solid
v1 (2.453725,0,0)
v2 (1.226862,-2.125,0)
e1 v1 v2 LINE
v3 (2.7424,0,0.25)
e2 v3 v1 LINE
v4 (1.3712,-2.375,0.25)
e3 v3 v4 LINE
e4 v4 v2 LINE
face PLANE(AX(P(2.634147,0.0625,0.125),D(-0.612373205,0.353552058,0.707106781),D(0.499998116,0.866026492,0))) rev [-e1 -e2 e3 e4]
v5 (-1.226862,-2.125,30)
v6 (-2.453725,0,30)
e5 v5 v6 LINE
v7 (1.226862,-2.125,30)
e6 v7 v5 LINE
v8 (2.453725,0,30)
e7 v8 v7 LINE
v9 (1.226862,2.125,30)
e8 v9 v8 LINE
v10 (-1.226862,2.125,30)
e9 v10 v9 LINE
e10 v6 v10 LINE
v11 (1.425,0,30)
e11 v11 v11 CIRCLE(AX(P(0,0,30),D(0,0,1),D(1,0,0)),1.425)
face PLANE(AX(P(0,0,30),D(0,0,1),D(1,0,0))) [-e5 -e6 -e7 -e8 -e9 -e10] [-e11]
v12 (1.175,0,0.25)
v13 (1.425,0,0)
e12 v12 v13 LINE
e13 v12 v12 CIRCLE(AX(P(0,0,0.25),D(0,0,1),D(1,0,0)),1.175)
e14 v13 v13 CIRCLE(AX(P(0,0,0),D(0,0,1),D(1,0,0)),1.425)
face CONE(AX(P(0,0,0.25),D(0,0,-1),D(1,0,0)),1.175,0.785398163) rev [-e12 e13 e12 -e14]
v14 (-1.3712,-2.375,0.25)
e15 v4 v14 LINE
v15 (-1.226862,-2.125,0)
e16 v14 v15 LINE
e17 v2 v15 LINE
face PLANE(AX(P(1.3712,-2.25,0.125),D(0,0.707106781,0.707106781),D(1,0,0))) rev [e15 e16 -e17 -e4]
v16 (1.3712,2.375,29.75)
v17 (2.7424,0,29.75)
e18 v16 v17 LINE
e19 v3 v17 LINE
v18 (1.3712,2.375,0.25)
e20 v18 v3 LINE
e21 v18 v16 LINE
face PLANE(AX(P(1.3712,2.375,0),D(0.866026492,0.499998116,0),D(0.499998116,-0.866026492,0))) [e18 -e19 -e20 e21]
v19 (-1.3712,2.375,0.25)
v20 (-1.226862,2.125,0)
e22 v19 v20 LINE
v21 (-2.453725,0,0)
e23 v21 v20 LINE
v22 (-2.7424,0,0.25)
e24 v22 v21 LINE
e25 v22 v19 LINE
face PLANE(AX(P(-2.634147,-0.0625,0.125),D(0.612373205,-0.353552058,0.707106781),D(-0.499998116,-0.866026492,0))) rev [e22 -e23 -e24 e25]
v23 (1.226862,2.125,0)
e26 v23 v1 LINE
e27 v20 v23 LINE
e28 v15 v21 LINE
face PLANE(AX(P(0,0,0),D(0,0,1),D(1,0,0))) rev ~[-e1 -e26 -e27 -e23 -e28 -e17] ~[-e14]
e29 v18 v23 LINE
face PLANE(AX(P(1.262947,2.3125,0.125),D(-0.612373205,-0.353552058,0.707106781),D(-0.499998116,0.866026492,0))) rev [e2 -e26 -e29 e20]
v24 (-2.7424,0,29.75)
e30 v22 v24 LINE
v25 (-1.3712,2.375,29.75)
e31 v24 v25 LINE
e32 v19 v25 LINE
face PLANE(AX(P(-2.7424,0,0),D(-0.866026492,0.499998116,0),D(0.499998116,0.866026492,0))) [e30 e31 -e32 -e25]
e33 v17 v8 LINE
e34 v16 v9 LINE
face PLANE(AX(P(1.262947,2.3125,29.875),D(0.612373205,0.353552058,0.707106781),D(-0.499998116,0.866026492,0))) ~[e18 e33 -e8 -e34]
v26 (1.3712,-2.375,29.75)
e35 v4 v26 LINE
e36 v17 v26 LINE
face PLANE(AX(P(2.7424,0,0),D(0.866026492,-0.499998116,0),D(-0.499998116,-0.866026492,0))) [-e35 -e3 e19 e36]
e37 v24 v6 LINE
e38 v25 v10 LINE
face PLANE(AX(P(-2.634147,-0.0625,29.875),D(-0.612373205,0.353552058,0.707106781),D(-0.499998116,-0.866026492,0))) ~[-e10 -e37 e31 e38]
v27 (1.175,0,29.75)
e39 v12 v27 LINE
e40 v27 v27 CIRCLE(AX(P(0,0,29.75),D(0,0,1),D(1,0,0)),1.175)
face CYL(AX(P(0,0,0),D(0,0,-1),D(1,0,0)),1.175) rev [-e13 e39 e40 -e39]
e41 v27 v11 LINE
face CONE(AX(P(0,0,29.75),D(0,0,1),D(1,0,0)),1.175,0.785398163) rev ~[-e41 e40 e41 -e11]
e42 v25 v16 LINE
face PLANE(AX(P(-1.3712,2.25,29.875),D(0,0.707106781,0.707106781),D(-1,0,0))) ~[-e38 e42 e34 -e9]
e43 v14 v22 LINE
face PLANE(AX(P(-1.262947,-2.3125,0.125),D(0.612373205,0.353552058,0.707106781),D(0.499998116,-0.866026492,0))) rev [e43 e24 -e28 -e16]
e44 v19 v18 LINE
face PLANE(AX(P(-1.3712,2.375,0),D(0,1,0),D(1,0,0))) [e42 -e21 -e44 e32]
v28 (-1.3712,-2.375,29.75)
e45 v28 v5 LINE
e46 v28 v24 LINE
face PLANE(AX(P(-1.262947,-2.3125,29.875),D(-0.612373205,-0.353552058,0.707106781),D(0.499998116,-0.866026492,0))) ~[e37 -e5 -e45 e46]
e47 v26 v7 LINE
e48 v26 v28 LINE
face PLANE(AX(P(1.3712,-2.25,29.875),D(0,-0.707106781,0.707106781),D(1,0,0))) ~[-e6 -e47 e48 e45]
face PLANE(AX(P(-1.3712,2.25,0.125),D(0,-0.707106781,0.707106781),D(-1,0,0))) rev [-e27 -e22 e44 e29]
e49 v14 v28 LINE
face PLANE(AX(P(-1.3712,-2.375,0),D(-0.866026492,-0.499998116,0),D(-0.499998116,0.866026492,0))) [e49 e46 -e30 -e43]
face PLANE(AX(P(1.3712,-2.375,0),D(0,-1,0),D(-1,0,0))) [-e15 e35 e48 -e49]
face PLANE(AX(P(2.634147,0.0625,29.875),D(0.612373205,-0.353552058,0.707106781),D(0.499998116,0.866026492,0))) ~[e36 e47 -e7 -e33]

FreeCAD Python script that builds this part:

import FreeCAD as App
import Part
import Sketcher
Q = App.Units.Quantity


def edges_at(feature, points):
    """Names of the edges that pass closest to the given points."""
    edges = feature.Shape.Edges
    near = lambda p: min(range(len(edges)), key=lambda i: edges[i].distToShape(Part.Vertex(*p))[0])
    return sorted({f"Edge{near(p) + 1}" for p in points})


def add_polygon(sketch, points):
    """Adds a closed chain of lines whose ends are joined by coincident constraints."""
    first, n = sketch.GeometryCount, len(points)
    for a, b in zip(points, points[1:] + points[:1]):
        sketch.addGeometry(Part.LineSegment(App.Vector(*a, 0), App.Vector(*b, 0)), False)
    for i in range(n):
        sketch.addConstraint(Sketcher.Constraint("Coincident", first + i, 2, first + (i + 1) % n, 1))

doc = App.newDocument("Part")
params = doc.addObject("Spreadsheet::Sheet", "Params")
for row, (alias, value) in enumerate([
    ("sketch1_diameter", "2.35 mm"),
    ("pad1_length", "30 mm"),
    ("chamfer_size", "0.25 mm"),
], start=1):
    params.set(f"A{row}", alias)
    params.set(f"B{row}", "=" + value)
    params.setAlias(f"B{row}", alias)

body = doc.addObject("PartDesign::Body", "Body")

# Sketch on XY plane
sketch1 = body.newObject("Sketcher::SketchObject", "Sketch")
sketch1.AttachmentSupport = (doc.getObject("XY_Plane"), [""])
sketch1.MapMode = "FlatFace"
add_polygon(sketch1, [(2.7, 0), (1.4, 2.4), (-1.4, 2.4), (-2.7, 0), (-1.4, -2.4), (1.4, -2.4)])  # lines 0-5
sketch1.addGeometry(Part.Circle(App.Vector(0, 0, 0), App.Vector(0, 0, 1), 1.2), False)  # 6
sketch1.addConstraint([
    Sketcher.Constraint("Horizontal", 1),
    Sketcher.Constraint("Horizontal", 4),
    Sketcher.Constraint("Coincident", 6, 3, -1, 1),
    Sketcher.Constraint("Symmetric", 0, 2, 3, 2, -1, 1),
    Sketcher.Constraint("Symmetric", 2, 2, 5, 2, -1, 1),
    Sketcher.Constraint("PointOnObject", 2, 2, -1),
    Sketcher.Constraint("Parallel", 2, 5),
    Sketcher.Constraint("Vertical", 1, 2, 3, 2),
    Sketcher.Constraint("Diameter", 6, 2.35),
    Sketcher.Constraint("Angle", 0, Q("119.9999 deg")),
    Sketcher.Constraint("DistanceY", 3, 2, 1, 2, 4.75),
    Sketcher.Constraint("DistanceX", 1, 2, 1, 1, 2.7424),
])
sketch1.setExpression("Constraints[14]", "Params.sketch1_diameter")
pad1 = body.newObject("PartDesign::Pad", "Pad")
pad1.Profile = sketch1
pad1.setExpression("Length", "Params.pad1_length")
doc.recompute()

chamfer = body.newObject("PartDesign::Chamfer", "Chamfer")
chamfer.Base = (pad1, edges_at(pad1, [
    (0, 2.375, 30),
    (-2.057, 1.188, 30),
    (-2.057, -1.188, 30),
    (2.057, -1.188, 30),
    (2.057, 1.188, 30),
    (2.057, 1.188, 0),
    (0, 2.375, 0),
    (-2.057, 1.188, 0),
    (-2.057, -1.188, 0),
    (-1.175, 0, 0),
    (0, -2.375, 0),
    (2.057, -1.188, 0),
    (-1.175, 0, 30),
    (0, -2.375, 30),
]))
chamfer.setExpression("Size", "Params.chamfer_size")

doc.recompute()
